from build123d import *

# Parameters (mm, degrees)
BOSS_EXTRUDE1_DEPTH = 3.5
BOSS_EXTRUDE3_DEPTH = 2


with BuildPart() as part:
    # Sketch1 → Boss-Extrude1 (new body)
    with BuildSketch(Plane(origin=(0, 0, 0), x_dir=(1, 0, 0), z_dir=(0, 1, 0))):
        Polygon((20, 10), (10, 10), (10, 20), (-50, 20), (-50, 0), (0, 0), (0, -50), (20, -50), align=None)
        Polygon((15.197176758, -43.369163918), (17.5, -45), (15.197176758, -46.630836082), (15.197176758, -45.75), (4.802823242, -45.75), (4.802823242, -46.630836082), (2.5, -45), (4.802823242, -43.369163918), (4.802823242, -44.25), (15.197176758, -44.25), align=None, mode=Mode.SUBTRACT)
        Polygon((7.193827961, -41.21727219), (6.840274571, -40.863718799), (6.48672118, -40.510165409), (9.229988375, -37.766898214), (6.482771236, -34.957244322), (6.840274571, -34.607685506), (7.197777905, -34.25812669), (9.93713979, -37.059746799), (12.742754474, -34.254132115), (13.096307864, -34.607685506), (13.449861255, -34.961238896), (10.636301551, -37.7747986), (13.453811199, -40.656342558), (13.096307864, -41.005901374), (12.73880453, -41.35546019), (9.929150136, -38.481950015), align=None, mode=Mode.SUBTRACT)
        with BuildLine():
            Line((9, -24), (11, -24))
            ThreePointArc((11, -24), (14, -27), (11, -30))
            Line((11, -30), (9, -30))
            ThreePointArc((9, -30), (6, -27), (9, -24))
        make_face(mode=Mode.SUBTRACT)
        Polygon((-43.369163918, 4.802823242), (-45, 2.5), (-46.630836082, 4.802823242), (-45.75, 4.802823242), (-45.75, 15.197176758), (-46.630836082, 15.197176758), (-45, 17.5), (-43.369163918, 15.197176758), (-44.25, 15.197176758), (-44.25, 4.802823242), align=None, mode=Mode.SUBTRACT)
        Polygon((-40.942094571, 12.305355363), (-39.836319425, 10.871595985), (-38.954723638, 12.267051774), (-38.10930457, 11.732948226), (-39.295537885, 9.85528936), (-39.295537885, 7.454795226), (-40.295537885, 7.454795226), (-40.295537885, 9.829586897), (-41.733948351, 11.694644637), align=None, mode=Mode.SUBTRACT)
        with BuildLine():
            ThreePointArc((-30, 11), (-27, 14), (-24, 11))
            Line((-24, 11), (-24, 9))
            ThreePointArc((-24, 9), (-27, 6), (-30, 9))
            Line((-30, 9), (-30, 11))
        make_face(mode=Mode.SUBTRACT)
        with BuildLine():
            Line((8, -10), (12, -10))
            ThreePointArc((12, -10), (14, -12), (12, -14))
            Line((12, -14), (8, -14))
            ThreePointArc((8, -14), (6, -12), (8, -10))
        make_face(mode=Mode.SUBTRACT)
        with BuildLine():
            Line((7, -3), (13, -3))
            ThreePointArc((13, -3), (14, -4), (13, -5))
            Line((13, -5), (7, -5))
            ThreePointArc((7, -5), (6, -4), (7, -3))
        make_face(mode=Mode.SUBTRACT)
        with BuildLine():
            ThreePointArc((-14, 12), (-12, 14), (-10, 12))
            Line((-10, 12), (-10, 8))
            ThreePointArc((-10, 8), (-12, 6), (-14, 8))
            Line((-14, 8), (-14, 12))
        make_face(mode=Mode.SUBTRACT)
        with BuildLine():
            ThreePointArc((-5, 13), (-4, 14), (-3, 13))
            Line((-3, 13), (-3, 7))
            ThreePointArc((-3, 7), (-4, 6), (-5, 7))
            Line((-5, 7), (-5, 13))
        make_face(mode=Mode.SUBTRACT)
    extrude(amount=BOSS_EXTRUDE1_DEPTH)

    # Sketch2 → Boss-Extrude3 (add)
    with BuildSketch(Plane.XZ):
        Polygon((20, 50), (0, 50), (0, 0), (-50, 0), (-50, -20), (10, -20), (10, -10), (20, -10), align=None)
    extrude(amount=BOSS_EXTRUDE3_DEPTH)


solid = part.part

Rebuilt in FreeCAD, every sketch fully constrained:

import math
import FreeCAD as App
import Part
import Sketcher
Q = App.Units.Quantity


def add_polygon(sketch, points):
    """Adds a closed chain of lines whose ends are joined by coincident constraints."""
    first, n = sketch.GeometryCount, len(points)
    for a, b in zip(points, points[1:] + points[:1]):
        sketch.addGeometry(Part.LineSegment(App.Vector(*a, 0), App.Vector(*b, 0)), False)
    for i in range(n):
        sketch.addConstraint(Sketcher.Constraint("Coincident", first + i, 2, first + (i + 1) % n, 1))

doc = App.newDocument("Part")
body = doc.addObject("PartDesign::Body", "Body")

# Sketch on XZ plane
sketch1 = doc.addObject("Sketcher::SketchObject", "Sketch")
body.addObject(sketch1)
sketch1.AttachmentSupport = (doc.XZ_Plane, [""])
sketch1.MapMode = "FlatFace"
add_polygon(sketch1, [(20, -10), (10, -10), (10, -20), (-50, -20), (-50, 0), (0, 0), (0, 50), (20, 50)])  # lines 0-7
add_polygon(sketch1, [(15.197177, 44.25), (15.197177, 43.369164), (17.5, 45), (15.197177, 46.630836), (15.197177, 45.75), (4.802823, 45.75), (4.802823, 46.630836), (2.5, 45), (4.802823, 43.369164), (4.802823, 44.25)])  # lines 8-17
add_polygon(sketch1, [(9.92915, 38.48195), (7.193828, 41.217272), (6.840275, 40.863719), (6.486721, 40.510165), (9.229988, 37.766898), (6.482771, 34.957244), (6.840275, 34.607686), (7.197778, 34.258127), (9.93714, 37.059747), (12.742754, 34.254132), (13.096308, 34.607686), (13.449861, 34.961239), (10.636302, 37.774799), (13.453811, 40.656343), (13.096308, 41.005901), (12.738805, 41.35546)])  # lines 18-33
sketch1.addGeometry(Part.ArcOfCircle(Part.Circle(App.Vector(9, 27, 0), App.Vector(0, 0, 1), 3), math.radians(90), math.radians(270)), False)  # 34
sketch1.addGeometry(Part.LineSegment(App.Vector(9, 24, 0), App.Vector(11, 24, 0)), False)  # 35
sketch1.addGeometry(Part.ArcOfCircle(Part.Circle(App.Vector(11, 27, 0), App.Vector(0, 0, 1), 3), math.radians(-90), math.radians(90)), False)  # 36
sketch1.addGeometry(Part.LineSegment(App.Vector(11, 30, 0), App.Vector(9, 30, 0)), False)  # 37
add_polygon(sketch1, [(-44.25, -4.802823), (-43.369164, -4.802823), (-45, -2.5), (-46.630836, -4.802823), (-45.75, -4.802823), (-45.75, -15.197177), (-46.630836, -15.197177), (-45, -17.5), (-43.369164, -15.197177), (-44.25, -15.197177)])  # lines 38-47
add_polygon(sketch1, [(-41.733948, -11.694645), (-40.942095, -12.305355), (-39.836319, -10.871596), (-38.954724, -12.267052), (-38.109305, -11.732948), (-39.295538, -9.855289), (-39.295538, -7.454795), (-40.295538, -7.454795), (-40.295538, -9.829587)])  # lines 48-56
sketch1.addGeometry(Part.LineSegment(App.Vector(-30, -9, 0), App.Vector(-30, -11, 0)), False)  # 57
sketch1.addGeometry(Part.ArcOfCircle(Part.Circle(App.Vector(-27, -11, 0), App.Vector(0, 0, 1), 3), math.radians(180), math.radians(360)), False)  # 58
sketch1.addGeometry(Part.LineSegment(App.Vector(-24, -11, 0), App.Vector(-24, -9, 0)), False)  # 59
sketch1.addGeometry(Part.ArcOfCircle(Part.Circle(App.Vector(-27, -9, 0), App.Vector(0, 0, 1), 3), math.radians(0), math.radians(180)), False)  # 60
sketch1.addGeometry(Part.ArcOfCircle(Part.Circle(App.Vector(8, 12, 0), App.Vector(0, 0, 1), 2), math.radians(90), math.radians(270)), False)  # 61
sketch1.addGeometry(Part.LineSegment(App.Vector(8, 10, 0), App.Vector(12, 10, 0)), False)  # 62
sketch1.addGeometry(Part.ArcOfCircle(Part.Circle(App.Vector(12, 12, 0), App.Vector(0, 0, 1), 2), math.radians(-90), math.radians(90)), False)  # 63
sketch1.addGeometry(Part.LineSegment(App.Vector(12, 14, 0), App.Vector(8, 14, 0)), False)  # 64
sketch1.addGeometry(Part.ArcOfCircle(Part.Circle(App.Vector(7, 4, 0), App.Vector(0, 0, 1), 1), math.radians(90), math.radians(270)), False)  # 65
sketch1.addGeometry(Part.LineSegment(App.Vector(7, 3, 0), App.Vector(13, 3, 0)), False)  # 66
sketch1.addGeometry(Part.ArcOfCircle(Part.Circle(App.Vector(13, 4, 0), App.Vector(0, 0, 1), 1), math.radians(-90), math.radians(90)), False)  # 67
sketch1.addGeometry(Part.LineSegment(App.Vector(13, 5, 0), App.Vector(7, 5, 0)), False)  # 68
sketch1.addGeometry(Part.LineSegment(App.Vector(-14, -8, 0), App.Vector(-14, -12, 0)), False)  # 69
sketch1.addGeometry(Part.ArcOfCircle(Part.Circle(App.Vector(-12, -12, 0), App.Vector(0, 0, 1), 2), math.radians(180), math.radians(360)), False)  # 70
sketch1.addGeometry(Part.LineSegment(App.Vector(-10, -12, 0), App.Vector(-10, -8, 0)), False)  # 71
sketch1.addGeometry(Part.ArcOfCircle(Part.Circle(App.Vector(-12, -8, 0), App.Vector(0, 0, 1), 2), math.radians(0), math.radians(180)), False)  # 72
sketch1.addGeometry(Part.LineSegment(App.Vector(-5, -7, 0), App.Vector(-5, -13, 0)), False)  # 73
sketch1.addGeometry(Part.ArcOfCircle(Part.Circle(App.Vector(-4, -13, 0), App.Vector(0, 0, 1), 1), math.radians(180), math.radians(360)), False)  # 74
sketch1.addGeometry(Part.LineSegment(App.Vector(-3, -13, 0), App.Vector(-3, -7, 0)), False)  # 75
sketch1.addGeometry(Part.ArcOfCircle(Part.Circle(App.Vector(-4, -7, 0), App.Vector(0, 0, 1), 1), math.radians(0), math.radians(180)), False)  # 76
sketch1.addConstraint(Sketcher.Constraint("Tangent", 34, 2, 35, 1))
sketch1.addConstraint(Sketcher.Constraint("Tangent", 35, 2, 36, 1))
sketch1.addConstraint(Sketcher.Constraint("Tangent", 36, 2, 37, 1))
sketch1.addConstraint(Sketcher.Constraint("Tangent", 37, 2, 34, 1))
sketch1.addConstraint(Sketcher.Constraint("Tangent", 57, 2, 58, 1))
sketch1.addConstraint(Sketcher.Constraint("Tangent", 58, 2, 59, 1))
sketch1.addConstraint(Sketcher.Constraint("Tangent", 59, 2, 60, 1))
sketch1.addConstraint(Sketcher.Constraint("Tangent", 60, 2, 57, 1))
sketch1.addConstraint(Sketcher.Constraint("Tangent", 61, 2, 62, 1))
sketch1.addConstraint(Sketcher.Constraint("Tangent", 62, 2, 63, 1))
sketch1.addConstraint(Sketcher.Constraint("Tangent", 63, 2, 64, 1))
sketch1.addConstraint(Sketcher.Constraint("Tangent", 64, 2, 61, 1))
sketch1.addConstraint(Sketcher.Constraint("Tangent", 65, 2, 66, 1))
sketch1.addConstraint(Sketcher.Constraint("Tangent", 66, 2, 67, 1))
sketch1.addConstraint(Sketcher.Constraint("Tangent", 67, 2, 68, 1))
sketch1.addConstraint(Sketcher.Constraint("Tangent", 68, 2, 65, 1))
sketch1.addConstraint(Sketcher.Constraint("Tangent", 69, 2, 70, 1))
sketch1.addConstraint(Sketcher.Constraint("Tangent", 70, 2, 71, 1))
sketch1.addConstraint(Sketcher.Constraint("Tangent", 71, 2, 72, 1))
sketch1.addConstraint(Sketcher.Constraint("Tangent", 72, 2, 69, 1))
sketch1.addConstraint(Sketcher.Constraint("Tangent", 73, 2, 74, 1))
sketch1.addConstraint(Sketcher.Constraint("Tangent", 74, 2, 75, 1))
sketch1.addConstraint(Sketcher.Constraint("Tangent", 75, 2, 76, 1))
sketch1.addConstraint(Sketcher.Constraint("Tangent", 76, 2, 73, 1))
sketch1.addConstraint(Sketcher.Constraint("Horizontal", 0))
sketch1.addConstraint(Sketcher.Constraint("Vertical", 1))
sketch1.addConstraint(Sketcher.Constraint("Horizontal", 2))
sketch1.addConstraint(Sketcher.Constraint("Vertical", 3))
sketch1.addConstraint(Sketcher.Constraint("Horizontal", 4))
sketch1.addConstraint(Sketcher.Constraint("Vertical", 5))
sketch1.addConstraint(Sketcher.Constraint("Horizontal", 6))
sketch1.addConstraint(Sketcher.Constraint("Vertical", 7))
sketch1.addConstraint(Sketcher.Constraint("Vertical", 8))
sketch1.addConstraint(Sketcher.Constraint("Vertical", 11))
sketch1.addConstraint(Sketcher.Constraint("Horizontal", 12))
sketch1.addConstraint(Sketcher.Constraint("Vertical", 13))
sketch1.addConstraint(Sketcher.Constraint("Vertical", 16))
sketch1.addConstraint(Sketcher.Constraint("Horizontal", 17))
sketch1.addConstraint(Sketcher.Constraint("Horizontal", 35))
sketch1.addConstraint(Sketcher.Constraint("Horizontal", 37))
sketch1.addConstraint(Sketcher.Constraint("Horizontal", 38))
sketch1.addConstraint(Sketcher.Constraint("Horizontal", 41))
sketch1.addConstraint(Sketcher.Constraint("Vertical", 42))
sketch1.addConstraint(Sketcher.Constraint("Horizontal", 43))
sketch1.addConstraint(Sketcher.Constraint("Horizontal", 46))
sketch1.addConstraint(Sketcher.Constraint("Vertical", 47))
sketch1.addConstraint(Sketcher.Constraint("Vertical", 53))
sketch1.addConstraint(Sketcher.Constraint("Horizontal", 54))
sketch1.addConstraint(Sketcher.Constraint("Vertical", 55))
sketch1.addConstraint(Sketcher.Constraint("Vertical", 57))
sketch1.addConstraint(Sketcher.Constraint("Vertical", 59))
sketch1.addConstraint(Sketcher.Constraint("Horizontal", 62))
sketch1.addConstraint(Sketcher.Constraint("Horizontal", 64))
sketch1.addConstraint(Sketcher.Constraint("Horizontal", 66))
sketch1.addConstraint(Sketcher.Constraint("Horizontal", 68))
sketch1.addConstraint(Sketcher.Constraint("Vertical", 69))
sketch1.addConstraint(Sketcher.Constraint("Vertical", 71))
sketch1.addConstraint(Sketcher.Constraint("Vertical", 73))
sketch1.addConstraint(Sketcher.Constraint("Vertical", 75))
sketch1.addConstraint(Sketcher.Constraint("Coincident", 4, 2, -1, 1))
sketch1.addConstraint(Sketcher.Constraint("Equal", 36, 58))
sketch1.addConstraint(Sketcher.Constraint("Equal", 63, 70))
sketch1.addConstraint(Sketcher.Constraint("Equal", 67, 74))
sketch1.addConstraint(Sketcher.Constraint("Symmetric", 63, 3, 70, 3, -1, 1))
sketch1.addConstraint(Sketcher.Constraint("Parallel", 9, 14))
sketch1.addConstraint(Sketcher.Constraint("Parallel", 10, 15))
sketch1.addConstraint(Sketcher.Constraint("Perpendicular", 18, 19))
sketch1.addConstraint(Sketcher.Constraint("Parallel", 19, 20))
sketch1.addConstraint(Sketcher.Constraint("Perpendicular", 20, 21))
sketch1.addConstraint(Sketcher.Constraint("Perpendicular", 22, 23))
sketch1.addConstraint(Sketcher.Constraint("Parallel", 23, 24))
sketch1.addConstraint(Sketcher.Constraint("Perpendicular", 24, 25))
sketch1.addConstraint(Sketcher.Constraint("Parallel", 21, 26))
sketch1.addConstraint(Sketcher.Constraint("Perpendicular", 26, 27))
sketch1.addConstraint(Sketcher.Constraint("Parallel", 27, 28))
sketch1.addConstraint(Sketcher.Constraint("Perpendicular", 28, 29))
sketch1.addConstraint(Sketcher.Constraint("Parallel", 25, 30))
sketch1.addConstraint(Sketcher.Constraint("Perpendicular", 30, 31))
sketch1.addConstraint(Sketcher.Constraint("Parallel", 31, 32))
sketch1.addConstraint(Sketcher.Constraint("Perpendicular", 32, 33))
sketch1.addConstraint(Sketcher.Constraint("Perpendicular", 14, 39))
sketch1.addConstraint(Sketcher.Constraint("Perpendicular", 15, 40))
sketch1.addConstraint(Sketcher.Constraint("Parallel", 39, 44))
sketch1.addConstraint(Sketcher.Constraint("Parallel", 40, 45))
sketch1.addConstraint(Sketcher.Constraint("Perpendicular", 48, 49))
sketch1.addConstraint(Sketcher.Constraint("Perpendicular", 50, 51))
sketch1.addConstraint(Sketcher.Constraint("Perpendicular", 51, 52))
sketch1.addConstraint(Sketcher.Constraint("Parallel", 49, 56))
sketch1.addConstraint(Sketcher.Constraint("Horizontal", 10, 2, 13, 2))
sketch1.addConstraint(Sketcher.Constraint("Horizontal", 9, 2, 14, 2))
sketch1.addConstraint(Sketcher.Constraint("Horizontal", 8, 2, 15, 2))
sketch1.addConstraint(Sketcher.Constraint("Horizontal", 23, 2, 27, 2))
sketch1.addConstraint(Sketcher.Constraint("Horizontal", 38, 2, 40, 2))
sketch1.addConstraint(Sketcher.Constraint("Horizontal", 43, 2, 45, 2))
sketch1.addConstraint(Sketcher.Constraint("Vertical", 8, 2, 10, 2))
sketch1.addConstraint(Sketcher.Constraint("Vertical", 13, 2, 15, 2))
sketch1.addConstraint(Sketcher.Constraint("Vertical", 19, 2, 23, 2))
sketch1.addConstraint(Sketcher.Constraint("Vertical", 27, 2, 31, 2))
sketch1.addConstraint(Sketcher.Constraint("Vertical", 40, 2, 43, 2))
sketch1.addConstraint(Sketcher.Constraint("Vertical", 39, 2, 44, 2))
sketch1.addConstraint(Sketcher.Constraint("Equal", 38, 41))
sketch1.addConstraint(Sketcher.Constraint("Equal", 0, 1))
sketch1.addConstraint(Sketcher.Constraint("Equal", 6, 3))
sketch1.addConstraint(Sketcher.Constraint("Equal", 4, 5))
sketch1.addConstraint(Sketcher.Constraint("Equal", 46, 8))
sketch1.addConstraint(Sketcher.Constraint("Equal", 8, 11))
sketch1.addConstraint(Sketcher.Constraint("Equal", 17, 42))
sketch1.addConstraint(Sketcher.Constraint("Equal", 37, 57))
sketch1.addConstraint(Sketcher.Constraint("Equal", 64, 69))
sketch1.addConstraint(Sketcher.Constraint("Equal", 68, 73))
sketch1.addConstraint(Sketcher.Constraint("Equal", 19, 20))
sketch1.addConstraint(Sketcher.Constraint("Equal", 20, 23))
sketch1.addConstraint(Sketcher.Constraint("Equal", 23, 24))
sketch1.addConstraint(Sketcher.Constraint("Equal", 24, 27))
sketch1.addConstraint(Sketcher.Constraint("Equal", 27, 28))
sketch1.addConstraint(Sketcher.Constraint("Equal", 28, 31))
sketch1.addConstraint(Sketcher.Constraint("Equal", 31, 32))
sketch1.addConstraint(Sketcher.Constraint("Equal", 15, 39))
sketch1.addConstraint(Sketcher.Constraint("Equal", 48, 51))
sketch1.addConstraint(Sketcher.Constraint("Radius", 34, 3.0))
sketch1.addConstraint(Sketcher.Constraint("Radius", 61, 2.0))
sketch1.addConstraint(Sketcher.Constraint("Radius", 65, 1.0))
sketch1.addConstraint(Sketcher.Constraint("DistanceX", 0, 2, 0, 1, 10.0))
sketch1.addConstraint(Sketcher.Constraint("DistanceX", 2, 2, 2, 1, 60.0))
sketch1.addConstraint(Sketcher.Constraint("DistanceX", 4, 1, 4, 2, 50.0))
sketch1.addConstraint(Sketcher.Constraint("DistanceX", 35, 1, 35, 2, 2.0))
sketch1.addConstraint(Sketcher.Constraint("DistanceX", 54, 2, 54, 1, 1.0))
sketch1.addConstraint(Sketcher.Constraint("DistanceX", 62, 1, 62, 2, 4.0))
sketch1.addConstraint(Sketcher.Constraint("DistanceX", 66, 1, 66, 2, 6.0))
sketch1.addConstraint(Sketcher.Constraint("Angle", 18, Q("135 deg")))
sketch1.addConstraint(Sketcher.Constraint("Distance", 48, 1.0))
sketch1.addConstraint(Sketcher.Constraint("DistanceX", -1, 1, 34, 3, 9.0))
sketch1.addConstraint(Sketcher.Constraint("DistanceY", -1, 1, 34, 3, 27.0))
sketch1.addConstraint(Sketcher.Constraint("DistanceX", 58, 3, -1, 1, 27.0))
sketch1.addConstraint(Sketcher.Constraint("DistanceY", 58, 3, -1, 1, 11.0))
sketch1.addConstraint(Sketcher.Constraint("DistanceX", -1, 1, 61, 3, 8.0))
sketch1.addConstraint(Sketcher.Constraint("DistanceY", -1, 1, 61, 3, 12.0))
sketch1.addConstraint(Sketcher.Constraint("DistanceX", -1, 1, 65, 3, 7.0))
sketch1.addConstraint(Sketcher.Constraint("DistanceY", -1, 1, 65, 3, 4.0))
sketch1.addConstraint(Sketcher.Constraint("DistanceX", 74, 3, -1, 1, 4.0))
sketch1.addConstraint(Sketcher.Constraint("DistanceY", 74, 3, -1, 1, 13.0))
sketch1.addConstraint(Sketcher.Constraint("DistanceY", -1, 1, 9, 2, 45.0))
sketch1.addConstraint(Sketcher.Constraint("DistanceX", 39, 2, -1, 1, 45.0))
sketch1.addConstraint(Sketcher.Constraint("Distance", 19, 0.5))
sketch1.addConstraint(Sketcher.Constraint("DistanceX", -1, 1, 9, 2, 17.5))
sketch1.addConstraint(Sketcher.Constraint("DistanceX", -1, 1, 14, 2, 2.5))
sketch1.addConstraint(Sketcher.Constraint("DistanceY", 39, 2, -1, 1, 2.5))
sketch1.addConstraint(Sketcher.Constraint("DistanceY", -1, 1, 11, 2, 45.75))
sketch1.addConstraint(Sketcher.Constraint("DistanceY", 55, 2, 55, 1, 2.374792))
sketch1.addConstraint(Sketcher.Constraint("DistanceY", -1, 1, 21, 2, 37.766898))
sketch1.addConstraint(Sketcher.Constraint("DistanceX", -1, 1, 29, 2, 10.636302))
sketch1.addConstraint(Sketcher.Constraint("DistanceY", -1, 1, 29, 2, 37.774799))
sketch1.addConstraint(Sketcher.Constraint("DistanceY", -1, 1, 31, 2, 41.005901))
sketch1.addConstraint(Sketcher.Constraint("Distance", 9, 2.821812))
sketch1.addConstraint(Sketcher.Constraint("Distance", 18, 3.86833))
sketch1.addConstraint(Sketcher.Constraint("Distance", 22, 3.929549))
sketch1.addConstraint(Sketcher.Constraint("Distance", 50, 1.650608))
sketch1.addConstraint(Sketcher.Constraint("Distance", 52, 2.22098))
sketch1.addConstraint(Sketcher.Constraint("DistanceX", 12, 2, 12, 1, 10.394354))
sketch1.addConstraint(Sketcher.Constraint("DistanceY", 53, 1, 53, 2, 2.400494))
sketch1.addConstraint(Sketcher.Constraint("DistanceX", 49, 2, -1, 1, 39.836319))
sketch1.addConstraint(Sketcher.Constraint("DistanceY", 50, 2, -1, 1, 12.267052))
sketch1.addConstraint(Sketcher.Constraint("DistanceY", 51, 2, -1, 1, 11.732948))
sketch1.addConstraint(Sketcher.Constraint("DistanceX", 56, 2, -1, 1, 41.733948))
pad1 = doc.addObject("PartDesign::Pad", "Pad")
body.addObject(pad1)
pad1.Profile = sketch1
pad1.Length = 3.5
pad1.Reversed = True

# Sketch on XZ plane
sketch2 = doc.addObject("Sketcher::SketchObject", "Sketch001")
body.addObject(sketch2)
sketch2.AttachmentSupport = (doc.XZ_Plane, [""])
sketch2.MapMode = "FlatFace"
add_polygon(sketch2, [(20, 50), (0, 50), (0, 0), (-50, 0), (-50, -20), (10, -20), (10, -10), (20, -10)])  # lines 0-7
sketch2.addConstraint(Sketcher.Constraint("Horizontal", 0))
sketch2.addConstraint(Sketcher.Constraint("Vertical", 1))
sketch2.addConstraint(Sketcher.Constraint("Horizontal", 2))
sketch2.addConstraint(Sketcher.Constraint("Vertical", 3))
sketch2.addConstraint(Sketcher.Constraint("Horizontal", 4))
sketch2.addConstraint(Sketcher.Constraint("Vertical", 5))
sketch2.addConstraint(Sketcher.Constraint("Horizontal", 6))
sketch2.addConstraint(Sketcher.Constraint("Vertical", 7))
sketch2.addConstraint(Sketcher.Constraint("Coincident", 1, 2, -1, 1))
sketch2.addConstraint(Sketcher.Constraint("Equal", 2, 1))
sketch2.addConstraint(Sketcher.Constraint("Equal", 0, 3))
sketch2.addConstraint(Sketcher.Constraint("Equal", 6, 5))
sketch2.addConstraint(Sketcher.Constraint("DistanceX", 0, 2, 0, 1, 20.0))
sketch2.addConstraint(Sketcher.Constraint("DistanceX", 2, 2, 2, 1, 50.0))
sketch2.addConstraint(Sketcher.Constraint("DistanceX", 4, 1, 4, 2, 60.0))
pad2 = doc.addObject("PartDesign::Pad", "Pad001")
body.addObject(pad2)
pad2.Profile = sketch2
pad2.Length = 2

doc.recompute()
